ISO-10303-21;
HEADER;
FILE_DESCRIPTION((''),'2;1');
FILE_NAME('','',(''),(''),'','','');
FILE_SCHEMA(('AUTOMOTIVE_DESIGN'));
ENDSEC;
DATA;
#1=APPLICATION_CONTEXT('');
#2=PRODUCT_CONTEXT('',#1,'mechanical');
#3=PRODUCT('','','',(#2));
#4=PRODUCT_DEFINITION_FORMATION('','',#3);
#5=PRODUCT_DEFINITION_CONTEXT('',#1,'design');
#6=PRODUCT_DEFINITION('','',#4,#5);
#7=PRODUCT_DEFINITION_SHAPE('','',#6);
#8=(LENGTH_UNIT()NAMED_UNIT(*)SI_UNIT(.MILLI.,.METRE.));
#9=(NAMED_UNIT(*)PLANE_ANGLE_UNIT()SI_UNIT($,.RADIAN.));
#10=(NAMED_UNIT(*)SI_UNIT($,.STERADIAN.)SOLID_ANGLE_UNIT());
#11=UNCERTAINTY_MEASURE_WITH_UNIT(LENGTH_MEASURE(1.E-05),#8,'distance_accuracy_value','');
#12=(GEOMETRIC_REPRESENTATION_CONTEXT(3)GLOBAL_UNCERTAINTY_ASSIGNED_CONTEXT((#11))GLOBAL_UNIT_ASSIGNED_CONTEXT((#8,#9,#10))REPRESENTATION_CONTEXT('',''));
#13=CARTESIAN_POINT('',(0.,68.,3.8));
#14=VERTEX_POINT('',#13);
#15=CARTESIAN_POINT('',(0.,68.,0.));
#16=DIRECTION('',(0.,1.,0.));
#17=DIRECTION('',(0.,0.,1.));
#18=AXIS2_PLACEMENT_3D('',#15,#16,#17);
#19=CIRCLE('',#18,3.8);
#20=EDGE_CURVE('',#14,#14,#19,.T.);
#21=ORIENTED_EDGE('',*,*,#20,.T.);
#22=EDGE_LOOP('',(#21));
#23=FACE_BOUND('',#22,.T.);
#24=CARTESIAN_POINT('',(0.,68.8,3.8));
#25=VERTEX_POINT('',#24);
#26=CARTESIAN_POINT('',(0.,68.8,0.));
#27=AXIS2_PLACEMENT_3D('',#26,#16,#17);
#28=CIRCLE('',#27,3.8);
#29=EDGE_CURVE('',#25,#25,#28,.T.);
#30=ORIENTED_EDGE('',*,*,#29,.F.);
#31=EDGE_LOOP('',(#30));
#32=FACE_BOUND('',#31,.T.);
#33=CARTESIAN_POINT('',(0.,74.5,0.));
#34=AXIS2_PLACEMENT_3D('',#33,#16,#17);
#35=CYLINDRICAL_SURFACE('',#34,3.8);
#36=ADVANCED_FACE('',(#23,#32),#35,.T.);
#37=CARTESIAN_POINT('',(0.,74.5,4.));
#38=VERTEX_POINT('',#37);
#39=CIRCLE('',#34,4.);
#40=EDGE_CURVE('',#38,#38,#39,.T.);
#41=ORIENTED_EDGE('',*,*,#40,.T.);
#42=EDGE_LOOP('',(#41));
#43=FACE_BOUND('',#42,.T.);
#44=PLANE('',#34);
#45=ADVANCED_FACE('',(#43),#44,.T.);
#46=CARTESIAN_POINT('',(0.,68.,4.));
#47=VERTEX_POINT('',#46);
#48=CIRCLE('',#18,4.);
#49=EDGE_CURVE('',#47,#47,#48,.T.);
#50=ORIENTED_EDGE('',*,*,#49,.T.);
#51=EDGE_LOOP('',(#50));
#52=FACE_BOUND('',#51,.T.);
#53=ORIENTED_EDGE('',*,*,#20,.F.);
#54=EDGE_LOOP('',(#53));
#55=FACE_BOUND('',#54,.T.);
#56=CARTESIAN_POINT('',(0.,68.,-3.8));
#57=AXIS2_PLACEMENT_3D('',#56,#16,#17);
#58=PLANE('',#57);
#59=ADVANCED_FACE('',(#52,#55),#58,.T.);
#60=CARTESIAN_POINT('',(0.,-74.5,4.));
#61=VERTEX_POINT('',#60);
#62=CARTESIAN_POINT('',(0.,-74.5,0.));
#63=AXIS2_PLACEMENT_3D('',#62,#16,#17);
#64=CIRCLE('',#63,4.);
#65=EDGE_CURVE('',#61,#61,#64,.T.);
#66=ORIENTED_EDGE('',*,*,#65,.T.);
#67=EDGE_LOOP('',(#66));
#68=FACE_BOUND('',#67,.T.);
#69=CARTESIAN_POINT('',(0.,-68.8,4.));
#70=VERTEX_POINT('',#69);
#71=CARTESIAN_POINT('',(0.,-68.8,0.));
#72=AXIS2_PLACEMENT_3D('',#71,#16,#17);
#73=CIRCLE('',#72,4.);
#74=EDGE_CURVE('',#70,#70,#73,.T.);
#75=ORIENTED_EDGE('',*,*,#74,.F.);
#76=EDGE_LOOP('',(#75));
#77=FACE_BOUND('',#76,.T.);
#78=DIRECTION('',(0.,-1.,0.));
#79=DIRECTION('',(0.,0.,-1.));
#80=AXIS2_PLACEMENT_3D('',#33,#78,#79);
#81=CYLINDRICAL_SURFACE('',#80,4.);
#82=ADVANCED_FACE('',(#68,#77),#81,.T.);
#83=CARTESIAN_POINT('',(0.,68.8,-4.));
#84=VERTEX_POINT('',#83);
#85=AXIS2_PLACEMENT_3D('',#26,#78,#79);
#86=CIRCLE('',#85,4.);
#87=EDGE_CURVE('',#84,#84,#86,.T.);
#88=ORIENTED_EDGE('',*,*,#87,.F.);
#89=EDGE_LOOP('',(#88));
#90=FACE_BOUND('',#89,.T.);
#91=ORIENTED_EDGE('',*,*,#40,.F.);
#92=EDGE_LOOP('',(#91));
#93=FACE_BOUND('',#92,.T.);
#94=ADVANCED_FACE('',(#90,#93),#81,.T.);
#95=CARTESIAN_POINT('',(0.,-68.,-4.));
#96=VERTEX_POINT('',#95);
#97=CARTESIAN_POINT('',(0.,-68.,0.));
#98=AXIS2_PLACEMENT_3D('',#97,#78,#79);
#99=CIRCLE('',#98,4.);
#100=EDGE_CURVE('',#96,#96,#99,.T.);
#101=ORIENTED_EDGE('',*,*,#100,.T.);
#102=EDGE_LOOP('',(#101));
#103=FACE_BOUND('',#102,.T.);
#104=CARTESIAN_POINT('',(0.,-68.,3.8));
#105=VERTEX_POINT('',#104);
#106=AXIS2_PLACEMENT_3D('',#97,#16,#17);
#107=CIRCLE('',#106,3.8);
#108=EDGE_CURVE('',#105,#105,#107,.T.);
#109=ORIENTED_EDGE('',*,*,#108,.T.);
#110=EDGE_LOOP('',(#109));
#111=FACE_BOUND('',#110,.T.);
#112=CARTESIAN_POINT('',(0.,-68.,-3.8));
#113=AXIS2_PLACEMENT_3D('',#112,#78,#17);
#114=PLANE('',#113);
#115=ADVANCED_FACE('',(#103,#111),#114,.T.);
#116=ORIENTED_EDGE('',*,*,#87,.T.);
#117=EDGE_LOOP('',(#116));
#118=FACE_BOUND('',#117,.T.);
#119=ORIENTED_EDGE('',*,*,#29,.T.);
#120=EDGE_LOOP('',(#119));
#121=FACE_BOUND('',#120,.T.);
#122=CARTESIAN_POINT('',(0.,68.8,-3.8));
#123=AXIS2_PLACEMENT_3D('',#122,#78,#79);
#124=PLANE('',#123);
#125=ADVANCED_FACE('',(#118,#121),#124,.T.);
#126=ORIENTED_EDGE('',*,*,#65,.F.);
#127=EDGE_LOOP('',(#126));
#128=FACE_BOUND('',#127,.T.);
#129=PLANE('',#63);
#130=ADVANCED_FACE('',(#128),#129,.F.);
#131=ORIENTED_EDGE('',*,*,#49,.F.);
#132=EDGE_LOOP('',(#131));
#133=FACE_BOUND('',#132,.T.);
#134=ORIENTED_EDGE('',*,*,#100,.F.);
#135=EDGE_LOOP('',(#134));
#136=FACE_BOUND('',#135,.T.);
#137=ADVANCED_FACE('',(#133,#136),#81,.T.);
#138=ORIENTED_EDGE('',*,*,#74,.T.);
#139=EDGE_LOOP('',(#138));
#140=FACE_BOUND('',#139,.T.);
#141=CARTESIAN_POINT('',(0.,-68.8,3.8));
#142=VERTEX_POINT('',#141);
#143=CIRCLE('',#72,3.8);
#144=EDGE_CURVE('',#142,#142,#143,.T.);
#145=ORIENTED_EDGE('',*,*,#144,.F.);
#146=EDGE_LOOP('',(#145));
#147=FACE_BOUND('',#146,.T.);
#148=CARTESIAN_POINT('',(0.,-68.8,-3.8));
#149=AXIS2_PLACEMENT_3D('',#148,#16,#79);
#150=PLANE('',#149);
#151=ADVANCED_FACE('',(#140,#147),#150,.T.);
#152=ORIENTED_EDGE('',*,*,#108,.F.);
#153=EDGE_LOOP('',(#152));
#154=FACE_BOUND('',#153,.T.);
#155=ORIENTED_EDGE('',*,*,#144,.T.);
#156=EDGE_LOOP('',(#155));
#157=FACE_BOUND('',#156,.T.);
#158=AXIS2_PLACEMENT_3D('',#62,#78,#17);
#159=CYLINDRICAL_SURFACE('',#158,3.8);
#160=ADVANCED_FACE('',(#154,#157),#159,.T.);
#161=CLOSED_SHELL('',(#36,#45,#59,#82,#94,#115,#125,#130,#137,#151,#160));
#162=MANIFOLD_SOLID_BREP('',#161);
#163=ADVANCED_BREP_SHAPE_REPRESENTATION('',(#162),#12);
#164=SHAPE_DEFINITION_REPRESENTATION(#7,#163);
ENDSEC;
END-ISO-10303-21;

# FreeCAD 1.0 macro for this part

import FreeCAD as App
import Part
import Sketcher

V = App.Vector

doc = App.newDocument("Part")
body = doc.addObject("PartDesign::Body", "Body")

sketch1 = doc.addObject("Sketcher::SketchObject", "Sketch")
body.addObject(sketch1)
sketch1.AttachmentSupport = (doc.XZ_Plane, [""])
sketch1.MapMode = "FlatFace"
sketch1.addGeometry(Part.Circle(V(0, 0, 0), V(0, 0, 1), 4), False)
sketch1.addConstraint([
    Sketcher.Constraint("Coincident", 0, 3, -1, 1),
    Sketcher.Constraint("Diameter", 0, 8.0),
])
pad1 = doc.addObject("PartDesign::Pad", "Pad")
body.addObject(pad1)
pad1.Profile = sketch1
pad1.Length = 149
pad1.Midplane = True

sketch2 = doc.addObject("Sketcher::SketchObject", "Sketch001")
body.addObject(sketch2)
sketch2.AttachmentSupport = (doc.YZ_Plane, [""])
sketch2.MapMode = "FlatFace"
sketch2.addGeometry([
    Part.LineSegment(V(68.8, -3.8, 0), V(68, -3.8, 0)),
    Part.LineSegment(V(68, -3.8, 0), V(68, -8.8, 0)),
    Part.LineSegment(V(68, -8.8, 0), V(68.8, -8.8, 0)),
    Part.LineSegment(V(68.8, -8.8, 0), V(68.8, -3.8, 0)),
], False)
sketch2.addConstraint([
    Sketcher.Constraint("Coincident", 0, 2, 1, 1),
    Sketcher.Constraint("Coincident", 1, 2, 2, 1),
    Sketcher.Constraint("Coincident", 2, 2, 3, 1),
    Sketcher.Constraint("Coincident", 3, 2, 0, 1),
    Sketcher.Constraint("Horizontal", 0),
    Sketcher.Constraint("Vertical", 1),
    Sketcher.Constraint("Horizontal", 2),
    Sketcher.Constraint("Vertical", 3),
    Sketcher.Constraint("DistanceY", 1, 2, 1, 1, 5.0),
    Sketcher.Constraint("DistanceX", 0, 2, 0, 1, 0.8),
    Sketcher.Constraint("DistanceX", -1, 1, 0, 2, 68.0),
    Sketcher.Constraint("DistanceY", 0, 2, -1, 1, 3.8),
])
groove = doc.addObject("PartDesign::Groove", "Groove")
body.addObject(groove)
groove.Profile = sketch2
groove.ReferenceAxis = (sketch2, ["H_Axis"])
groove.Angle = 360
doc.recompute()

mirrored = doc.addObject("PartDesign::Mirrored", "Mirrored")
body.addObject(mirrored)
mirrored.Originals = [groove]
mirrored.MirrorPlane = (doc.XZ_Plane, [""])
body.Tip = mirrored

doc.recompute()
